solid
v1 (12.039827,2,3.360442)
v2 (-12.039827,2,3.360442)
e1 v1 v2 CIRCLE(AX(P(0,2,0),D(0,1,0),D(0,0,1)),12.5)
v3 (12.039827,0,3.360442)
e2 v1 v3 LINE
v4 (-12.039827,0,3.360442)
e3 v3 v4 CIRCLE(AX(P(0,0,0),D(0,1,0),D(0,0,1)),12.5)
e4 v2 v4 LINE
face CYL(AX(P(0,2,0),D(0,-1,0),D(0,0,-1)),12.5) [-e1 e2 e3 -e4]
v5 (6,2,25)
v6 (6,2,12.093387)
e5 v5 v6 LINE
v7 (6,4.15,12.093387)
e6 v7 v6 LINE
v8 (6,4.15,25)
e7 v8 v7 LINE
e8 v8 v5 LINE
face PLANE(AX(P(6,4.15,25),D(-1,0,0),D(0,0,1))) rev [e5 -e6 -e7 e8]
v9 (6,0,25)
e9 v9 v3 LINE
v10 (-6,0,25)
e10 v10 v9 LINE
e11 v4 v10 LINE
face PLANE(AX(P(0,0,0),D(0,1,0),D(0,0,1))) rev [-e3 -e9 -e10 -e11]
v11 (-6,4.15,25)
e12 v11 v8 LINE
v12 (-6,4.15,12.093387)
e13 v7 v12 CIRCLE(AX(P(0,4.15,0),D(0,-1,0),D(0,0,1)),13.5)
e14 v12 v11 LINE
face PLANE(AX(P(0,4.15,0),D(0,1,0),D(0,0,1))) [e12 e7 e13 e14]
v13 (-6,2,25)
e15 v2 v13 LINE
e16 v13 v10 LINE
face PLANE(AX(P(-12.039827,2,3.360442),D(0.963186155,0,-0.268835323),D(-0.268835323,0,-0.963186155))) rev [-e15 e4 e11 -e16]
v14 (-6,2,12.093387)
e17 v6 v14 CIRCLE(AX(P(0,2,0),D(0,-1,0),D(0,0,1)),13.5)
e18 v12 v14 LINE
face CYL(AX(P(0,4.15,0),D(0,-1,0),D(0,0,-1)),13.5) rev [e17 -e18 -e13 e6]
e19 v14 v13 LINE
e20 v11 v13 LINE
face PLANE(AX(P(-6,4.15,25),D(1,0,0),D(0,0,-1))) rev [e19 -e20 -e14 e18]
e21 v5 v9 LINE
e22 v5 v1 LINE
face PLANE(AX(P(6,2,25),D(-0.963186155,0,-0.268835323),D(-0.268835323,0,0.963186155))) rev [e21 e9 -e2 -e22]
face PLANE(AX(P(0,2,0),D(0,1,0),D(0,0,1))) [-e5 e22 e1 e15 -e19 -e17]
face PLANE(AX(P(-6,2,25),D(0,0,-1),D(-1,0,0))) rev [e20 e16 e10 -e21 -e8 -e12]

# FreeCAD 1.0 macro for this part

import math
import FreeCAD as App
import Part
import Sketcher

V = App.Vector

doc = App.newDocument("Part")
params = doc.addObject("Spreadsheet::Sheet", "Params")
for row, (alias, value) in enumerate([
    ("sketch1_radius", "12.5 mm"),
    ("sketch1_width", "12 mm"),
    ("pad1_length", "2 mm"),
    ("sketch2_radius", "13.5 mm"),
    ("sketch2_width", "12 mm"),
    ("pad2_length", "2.15 mm"),
], start=1):
    params.set(f"A{row}", alias)
    params.set(f"B{row}", "=" + value)
    params.setAlias(f"B{row}", alias)

body = doc.addObject("PartDesign::Body", "Body")

# Sketch on XZ plane
sketch1 = doc.addObject("Sketcher::SketchObject", "Sketch")
body.addObject(sketch1)
sketch1.AttachmentSupport = (doc.XZ_Plane, [""])
sketch1.MapMode = "FlatFace"
sketch1.addGeometry([
    Part.LineSegment(V(-12, 3, 0), V(-6, 25, 0)),
    Part.LineSegment(V(-6, 25, 0), V(6, 25, 0)),
    Part.LineSegment(V(6, 25, 0), V(12, 3, 0)),
    Part.ArcOfCircle(Part.Circle(V(0, 0, 0), V(0, 0, 1), 12), math.radians(164), math.radians(376)),
], False)
sketch1.addConstraint([
    Sketcher.Constraint("Coincident", 0, 2, 1, 1),
    Sketcher.Constraint("Coincident", 1, 2, 2, 1),
    Sketcher.Constraint("Tangent", 2, 2, 3, 2),
    Sketcher.Constraint("Tangent", 3, 1, 0, 1),
    Sketcher.Constraint("Horizontal", 1),
    Sketcher.Constraint("Coincident", 3, 3, -1, 1),
    Sketcher.Constraint("Horizontal", 2, 2, 3, 1),
    Sketcher.Constraint("Radius", 3, 12.5),
    Sketcher.Constraint("DistanceX", 1, 1, 1, 2, 12.0),
    Sketcher.Constraint("DistanceY", -1, 1, 0, 2, 25.0),
])
sketch1.setExpression("Constraints[7]", "Params.sketch1_radius")
sketch1.setExpression("Constraints[8]", "Params.sketch1_width")
pad1 = doc.addObject("PartDesign::Pad", "Pad")
body.addObject(pad1)
pad1.Profile = sketch1
pad1.setExpression("Length", "Params.pad1_length")
pad1.Reversed = True

# Sketch on XZ plane
sketch2 = doc.addObject("Sketcher::SketchObject", "Sketch001")
body.addObject(sketch2)
sketch2.AttachmentSupport = (doc.XZ_Plane, [""])
sketch2.MapMode = "FlatFace"
sketch2.AttachmentOffset = App.Placement(V(0, 0, -2), App.Rotation())
sketch2.addGeometry([
    Part.LineSegment(V(-6, 12, 0), V(-6, 25, 0)),
    Part.LineSegment(V(-6, 25, 0), V(6, 25, 0)),
    Part.LineSegment(V(6, 25, 0), V(6, 12, 0)),
    Part.ArcOfCircle(Part.Circle(V(0, 0, 0), V(0, 0, 1), 13), math.radians(64), math.radians(116)),
], False)
sketch2.addConstraint([
    Sketcher.Constraint("Coincident", 0, 2, 1, 1),
    Sketcher.Constraint("Coincident", 1, 2, 2, 1),
    Sketcher.Constraint("Coincident", 2, 2, 3, 1),
    Sketcher.Constraint("Coincident", 3, 2, 0, 1),
    Sketcher.Constraint("Vertical", 0),
    Sketcher.Constraint("Horizontal", 1),
    Sketcher.Constraint("Vertical", 2),
    Sketcher.Constraint("Coincident", 3, 3, -1, 1),
    Sketcher.Constraint("Horizontal", 2, 2, 3, 2),
    Sketcher.Constraint("Radius", 3, 13.5),
    Sketcher.Constraint("DistanceX", 1, 1, 1, 2, 12.0),
    Sketcher.Constraint("DistanceY", -1, 1, 0, 2, 25.0),
])
sketch2.setExpression("Constraints[9]", "Params.sketch2_radius")
sketch2.setExpression("Constraints[10]", "Params.sketch2_width")
pad2 = doc.addObject("PartDesign::Pad", "Pad001")
body.addObject(pad2)
pad2.Profile = sketch2
pad2.setExpression("Length", "Params.pad2_length")
pad2.Reversed = True

doc.recompute()
